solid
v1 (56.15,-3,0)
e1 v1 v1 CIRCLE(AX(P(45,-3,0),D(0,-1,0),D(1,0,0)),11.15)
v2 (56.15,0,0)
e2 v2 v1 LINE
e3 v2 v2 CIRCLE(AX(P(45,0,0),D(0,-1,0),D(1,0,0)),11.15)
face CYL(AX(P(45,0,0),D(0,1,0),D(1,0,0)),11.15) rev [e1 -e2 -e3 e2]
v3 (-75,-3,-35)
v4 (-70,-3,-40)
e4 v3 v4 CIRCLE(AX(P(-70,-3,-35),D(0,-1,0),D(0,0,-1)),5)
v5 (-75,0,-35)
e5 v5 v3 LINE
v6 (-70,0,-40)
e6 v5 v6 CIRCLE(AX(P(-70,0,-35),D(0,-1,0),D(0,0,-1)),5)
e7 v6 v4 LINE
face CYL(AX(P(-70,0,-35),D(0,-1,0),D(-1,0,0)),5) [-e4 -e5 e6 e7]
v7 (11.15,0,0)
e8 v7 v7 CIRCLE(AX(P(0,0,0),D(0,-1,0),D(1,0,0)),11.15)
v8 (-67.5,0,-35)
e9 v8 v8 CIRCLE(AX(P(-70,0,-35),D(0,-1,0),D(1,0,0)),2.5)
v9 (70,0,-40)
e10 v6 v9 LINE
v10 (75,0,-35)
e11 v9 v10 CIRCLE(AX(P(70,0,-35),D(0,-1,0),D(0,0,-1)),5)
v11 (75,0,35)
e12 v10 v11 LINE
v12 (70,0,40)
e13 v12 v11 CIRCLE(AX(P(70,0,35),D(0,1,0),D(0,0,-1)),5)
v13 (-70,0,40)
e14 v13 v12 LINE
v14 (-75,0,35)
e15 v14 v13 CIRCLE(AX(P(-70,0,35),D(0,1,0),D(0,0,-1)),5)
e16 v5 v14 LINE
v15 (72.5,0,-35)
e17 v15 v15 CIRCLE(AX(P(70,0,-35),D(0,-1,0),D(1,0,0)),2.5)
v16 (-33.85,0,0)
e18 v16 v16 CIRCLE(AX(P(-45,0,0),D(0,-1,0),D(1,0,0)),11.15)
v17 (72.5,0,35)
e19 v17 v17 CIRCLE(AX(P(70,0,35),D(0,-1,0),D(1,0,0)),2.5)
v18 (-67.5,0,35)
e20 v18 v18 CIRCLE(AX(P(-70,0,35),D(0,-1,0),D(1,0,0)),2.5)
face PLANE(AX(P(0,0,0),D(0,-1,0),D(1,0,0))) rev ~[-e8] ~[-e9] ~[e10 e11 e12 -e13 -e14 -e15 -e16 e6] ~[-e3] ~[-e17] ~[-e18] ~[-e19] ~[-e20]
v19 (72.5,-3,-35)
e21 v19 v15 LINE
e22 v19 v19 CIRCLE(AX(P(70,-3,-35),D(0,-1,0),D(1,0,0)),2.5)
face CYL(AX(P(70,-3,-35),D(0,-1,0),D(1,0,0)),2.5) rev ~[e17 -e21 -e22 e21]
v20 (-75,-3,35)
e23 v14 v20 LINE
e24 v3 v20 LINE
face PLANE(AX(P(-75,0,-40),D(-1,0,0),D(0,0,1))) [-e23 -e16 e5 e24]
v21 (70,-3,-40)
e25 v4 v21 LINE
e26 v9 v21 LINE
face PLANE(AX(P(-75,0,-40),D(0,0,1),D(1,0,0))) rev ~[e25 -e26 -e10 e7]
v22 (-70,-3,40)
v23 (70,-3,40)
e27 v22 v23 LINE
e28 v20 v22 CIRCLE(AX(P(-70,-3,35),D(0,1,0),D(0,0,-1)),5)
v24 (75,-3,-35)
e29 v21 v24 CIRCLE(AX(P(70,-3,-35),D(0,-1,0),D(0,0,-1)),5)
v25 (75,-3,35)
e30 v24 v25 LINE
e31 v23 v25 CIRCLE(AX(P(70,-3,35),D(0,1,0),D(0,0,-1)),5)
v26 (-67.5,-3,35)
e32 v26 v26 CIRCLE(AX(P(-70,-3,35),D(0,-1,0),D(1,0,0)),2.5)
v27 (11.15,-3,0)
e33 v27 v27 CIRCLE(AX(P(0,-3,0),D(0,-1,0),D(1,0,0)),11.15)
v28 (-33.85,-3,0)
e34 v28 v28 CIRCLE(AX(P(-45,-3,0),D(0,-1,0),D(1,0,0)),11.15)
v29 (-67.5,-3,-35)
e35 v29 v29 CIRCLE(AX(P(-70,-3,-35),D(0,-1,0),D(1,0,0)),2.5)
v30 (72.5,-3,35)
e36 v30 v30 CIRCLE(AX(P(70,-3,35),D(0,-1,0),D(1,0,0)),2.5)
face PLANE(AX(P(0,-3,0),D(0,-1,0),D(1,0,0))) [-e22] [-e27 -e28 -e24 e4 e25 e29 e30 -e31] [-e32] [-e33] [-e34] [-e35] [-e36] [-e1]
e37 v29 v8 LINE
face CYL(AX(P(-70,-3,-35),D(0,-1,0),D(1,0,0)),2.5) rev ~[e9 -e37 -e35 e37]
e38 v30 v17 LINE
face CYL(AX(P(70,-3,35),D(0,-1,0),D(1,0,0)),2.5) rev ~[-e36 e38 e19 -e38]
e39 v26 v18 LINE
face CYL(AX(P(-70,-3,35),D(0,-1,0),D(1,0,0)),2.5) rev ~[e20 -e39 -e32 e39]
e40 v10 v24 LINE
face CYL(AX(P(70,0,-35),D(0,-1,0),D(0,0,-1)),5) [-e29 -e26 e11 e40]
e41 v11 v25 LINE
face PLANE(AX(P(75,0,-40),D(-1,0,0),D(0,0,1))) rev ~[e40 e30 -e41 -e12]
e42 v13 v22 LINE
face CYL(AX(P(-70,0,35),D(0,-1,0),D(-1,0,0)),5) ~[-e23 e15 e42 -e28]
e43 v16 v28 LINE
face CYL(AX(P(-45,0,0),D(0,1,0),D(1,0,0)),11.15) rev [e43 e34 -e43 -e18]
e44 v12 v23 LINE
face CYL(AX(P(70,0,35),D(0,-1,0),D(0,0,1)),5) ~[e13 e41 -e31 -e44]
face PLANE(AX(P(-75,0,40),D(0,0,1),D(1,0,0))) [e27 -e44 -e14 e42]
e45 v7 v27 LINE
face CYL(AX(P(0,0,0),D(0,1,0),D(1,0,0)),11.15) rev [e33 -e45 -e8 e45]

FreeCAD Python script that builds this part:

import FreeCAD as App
import Part
import Sketcher
Q = App.Units.Quantity


def edges_at(feature, points):
    """Names of the edges that pass closest to the given points."""
    edges = feature.Shape.Edges
    near = lambda p: min(range(len(edges)), key=lambda i: edges[i].distToShape(Part.Vertex(*p))[0])
    return sorted({f"Edge{near(p) + 1}" for p in points})

doc = App.newDocument("Part")
body = doc.addObject("PartDesign::Body", "Body")

# Sketch on XZ plane
sketch1 = doc.addObject("Sketcher::SketchObject", "Sketch")
body.addObject(sketch1)
sketch1.AttachmentSupport = (doc.XZ_Plane, [""])
sketch1.MapMode = "FlatFace"
sketch1.addGeometry([
    Part.LineSegment(App.Vector(-75, 40, 0), App.Vector(-75, -40, 0)),  # 0
    Part.LineSegment(App.Vector(-75, -40, 0), App.Vector(75, -40, 0)),  # 1
    Part.LineSegment(App.Vector(75, -40, 0), App.Vector(75, 40, 0)),  # 2
    Part.LineSegment(App.Vector(75, 40, 0), App.Vector(-75, 40, 0)),  # 3
    Part.Circle(App.Vector(-45, 0, 0), App.Vector(0, 0, 1), 11.15),  # 4
    Part.Circle(App.Vector(0, 0, 0), App.Vector(0, 0, 1), 11.15),  # 5
    Part.Circle(App.Vector(45, 0, 0), App.Vector(0, 0, 1), 11.15),  # 6
], False)
sketch1.addConstraint([
    Sketcher.Constraint("Coincident", 0, 2, 1, 1),
    Sketcher.Constraint("Coincident", 1, 2, 2, 1),
    Sketcher.Constraint("Coincident", 2, 2, 3, 1),
    Sketcher.Constraint("Coincident", 3, 2, 0, 1),
    Sketcher.Constraint("Vertical", 0),
    Sketcher.Constraint("Horizontal", 1),
    Sketcher.Constraint("Vertical", 2),
    Sketcher.Constraint("Horizontal", 3),
    Sketcher.Constraint("Coincident", 5, 3, -1, 1),
    Sketcher.Constraint("Equal", 4, 5),
    Sketcher.Constraint("Equal", 5, 6),
    Sketcher.Constraint("Symmetric", 4, 3, 6, 3, -1, 1),
    Sketcher.Constraint("Symmetric", 0, 2, 2, 2, -1, 1),
    Sketcher.Constraint("PointOnObject", 4, 3, -1),
    Sketcher.Constraint("Diameter", 4, Q("22.3 mm")),
    Sketcher.Constraint("DistanceX", 1, 1, 1, 2, Q("150 mm")),
    Sketcher.Constraint("DistanceY", 0, 2, 0, 1, Q("80 mm")),
    Sketcher.Constraint("DistanceX", 4, 3, -1, 1, Q("45 mm")),
])
pad1 = doc.addObject("PartDesign::Pad", "Pad")
body.addObject(pad1)
pad1.Profile = sketch1
pad1.Length = 3

# Sketch on XZ plane
sketch2 = doc.addObject("Sketcher::SketchObject", "Sketch001")
body.addObject(sketch2)
sketch2.AttachmentSupport = (doc.XZ_Plane, [""])
sketch2.MapMode = "FlatFace"
sketch2.AttachmentOffset = App.Placement(App.Vector(0, 0, 3), App.Rotation())
sketch2.addGeometry([
    Part.Circle(App.Vector(-70, 35, 0), App.Vector(0, 0, 1), 2.5),
    Part.Circle(App.Vector(70, 35, 0), App.Vector(0, 0, 1), 2.5),
    Part.Circle(App.Vector(70, -35, 0), App.Vector(0, 0, 1), 2.5),
    Part.Circle(App.Vector(-70, -35, 0), App.Vector(0, 0, 1), 2.5),
], False)
sketch2.addConstraint([
    Sketcher.Constraint("Equal", 0, 1),
    Sketcher.Constraint("Equal", 1, 2),
    Sketcher.Constraint("Equal", 2, 3),
    Sketcher.Constraint("Symmetric", 0, 3, 2, 3, -1, 1),
    Sketcher.Constraint("Symmetric", 1, 3, 3, 3, -1, 1),
    Sketcher.Constraint("Symmetric", 0, 3, 1, 3, -2),
    Sketcher.Constraint("Diameter", 0, Q("5 mm")),
    Sketcher.Constraint("DistanceX", 0, 3, -1, 1, Q("70 mm")),
    Sketcher.Constraint("DistanceY", -1, 1, 0, 3, Q("35 mm")),
])
pocket1 = doc.addObject("PartDesign::Pocket", "Pocket")
body.addObject(pocket1)
pocket1.Profile = sketch2
pocket1.Type = "ThroughAll"
doc.recompute()

fillet = doc.addObject("PartDesign::Fillet", "Fillet")
body.addObject(fillet)
fillet.Base = (pocket1, edges_at(pocket1, [
    (-75, -1.5, 40),
    (75, -1.5, 40),
    (75, -1.5, -40),
    (-75, -1.5, -40),
]))
fillet.Radius = 5

doc.recompute()
